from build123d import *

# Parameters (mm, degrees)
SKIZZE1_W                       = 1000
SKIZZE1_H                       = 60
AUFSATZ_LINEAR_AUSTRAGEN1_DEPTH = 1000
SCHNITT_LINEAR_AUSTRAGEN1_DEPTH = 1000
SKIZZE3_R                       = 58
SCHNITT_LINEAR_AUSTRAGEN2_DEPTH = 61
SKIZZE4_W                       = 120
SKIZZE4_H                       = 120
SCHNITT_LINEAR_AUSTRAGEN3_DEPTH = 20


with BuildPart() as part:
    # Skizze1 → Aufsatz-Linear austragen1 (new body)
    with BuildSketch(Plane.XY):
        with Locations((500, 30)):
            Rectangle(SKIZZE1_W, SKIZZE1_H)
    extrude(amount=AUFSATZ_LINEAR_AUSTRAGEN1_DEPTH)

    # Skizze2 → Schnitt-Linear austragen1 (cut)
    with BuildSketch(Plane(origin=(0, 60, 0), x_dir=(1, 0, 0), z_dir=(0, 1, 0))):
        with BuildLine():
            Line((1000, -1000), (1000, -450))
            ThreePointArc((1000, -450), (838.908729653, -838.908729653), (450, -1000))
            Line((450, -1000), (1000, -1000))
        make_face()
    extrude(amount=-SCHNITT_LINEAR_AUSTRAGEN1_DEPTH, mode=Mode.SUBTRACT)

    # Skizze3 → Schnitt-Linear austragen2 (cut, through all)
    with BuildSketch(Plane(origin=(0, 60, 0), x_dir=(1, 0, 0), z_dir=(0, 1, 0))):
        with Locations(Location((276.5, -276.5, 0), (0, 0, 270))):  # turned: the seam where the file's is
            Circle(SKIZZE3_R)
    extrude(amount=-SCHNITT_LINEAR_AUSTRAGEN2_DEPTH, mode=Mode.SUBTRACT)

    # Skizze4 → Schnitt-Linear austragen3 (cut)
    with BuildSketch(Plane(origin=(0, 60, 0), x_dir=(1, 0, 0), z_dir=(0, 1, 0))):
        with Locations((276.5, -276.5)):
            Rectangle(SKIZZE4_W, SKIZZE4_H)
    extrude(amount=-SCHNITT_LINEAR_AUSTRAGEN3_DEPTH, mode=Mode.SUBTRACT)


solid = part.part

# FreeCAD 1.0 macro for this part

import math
import FreeCAD as App
import Part
import Sketcher
Q = App.Units.Quantity


def add_polygon(sketch, points):
    """Adds a closed chain of lines whose ends are joined by coincident constraints."""
    first, n = sketch.GeometryCount, len(points)
    for a, b in zip(points, points[1:] + points[:1]):
        sketch.addGeometry(Part.LineSegment(App.Vector(*a, 0), App.Vector(*b, 0)), False)
    for i in range(n):
        sketch.addConstraint(Sketcher.Constraint("Coincident", first + i, 2, first + (i + 1) % n, 1))

doc = App.newDocument("Part")
body = doc.addObject("PartDesign::Body", "Body")

sketch1 = body.newObject("Sketcher::SketchObject", "Sketch")
sketch1.AttachmentSupport = (doc.getObject("XY_Plane"), [""])
sketch1.MapMode = "FlatFace"
add_polygon(sketch1, [(0, 60), (0, 0), (1000, 0), (1000, 60)])
sketch1.addConstraint(Sketcher.Constraint("Vertical", 0))
sketch1.addConstraint(Sketcher.Constraint("Horizontal", 1))
sketch1.addConstraint(Sketcher.Constraint("Vertical", 2))
sketch1.addConstraint(Sketcher.Constraint("Horizontal", 3))
sketch1.addConstraint(Sketcher.Constraint("Coincident", 0, 2, -1, 1))
sketch1.addConstraint(Sketcher.Constraint("DistanceX", 1, 1, 1, 2, Q("1000 mm")))
sketch1.addConstraint(Sketcher.Constraint("DistanceY", 0, 2, 0, 1, Q("60 mm")))
pad1 = body.newObject("PartDesign::Pad", "Pad")
pad1.Profile = sketch1
pad1.Length = 1000

sketch2 = body.newObject("Sketcher::SketchObject", "Sketch001")
sketch2.AttachmentSupport = (doc.getObject("XZ_Plane"), [""])
sketch2.MapMode = "FlatFace"
sketch2.AttachmentOffset = App.Placement(App.Vector(0, 0, -60), App.Rotation())
sketch2.addGeometry(Part.LineSegment(App.Vector(1000, 1000, 0), App.Vector(1000, 450, 0)), False)
sketch2.addGeometry(Part.ArcOfCircle(Part.Circle(App.Vector(450, 450, 0), App.Vector(0, 0, 1), 550), math.radians(0), math.radians(90)), False)
sketch2.addGeometry(Part.LineSegment(App.Vector(450, 1000, 0), App.Vector(1000, 1000, 0)), False)
sketch2.addConstraint(Sketcher.Constraint("Tangent", 0, 2, 1, 1))
sketch2.addConstraint(Sketcher.Constraint("Tangent", 1, 2, 2, 1))
sketch2.addConstraint(Sketcher.Constraint("Coincident", 2, 2, 0, 1))
sketch2.addConstraint(Sketcher.Constraint("Vertical", 0))
sketch2.addConstraint(Sketcher.Constraint("Horizontal", 2))
sketch2.addConstraint(Sketcher.Constraint("Radius", 1, Q("550 mm")))
sketch2.addConstraint(Sketcher.Constraint("DistanceX", -1, 1, 1, 3, Q("450 mm")))
sketch2.addConstraint(Sketcher.Constraint("DistanceY", -1, 1, 1, 3, Q("450 mm")))
pocket1 = body.newObject("PartDesign::Pocket", "Pocket")
pocket1.Profile = sketch2
pocket1.Length = 1000
pocket1.Reversed = True

sketch3 = body.newObject("Sketcher::SketchObject", "Sketch002")
sketch3.AttachmentSupport = (doc.getObject("XZ_Plane"), [""])
sketch3.MapMode = "FlatFace"
sketch3.AttachmentOffset = App.Placement(App.Vector(0, 0, -60), App.Rotation())
sketch3.addGeometry(Part.Circle(App.Vector(276, 276, 0), App.Vector(0, 0, 1), 58), False)
sketch3.addConstraint(Sketcher.Constraint("Diameter", 0, Q("116 mm")))
sketch3.addConstraint(Sketcher.Constraint("DistanceX", -1, 1, 0, 3, Q("276.5 mm")))
sketch3.addConstraint(Sketcher.Constraint("DistanceY", -1, 1, 0, 3, Q("276.5 mm")))
pocket2 = body.newObject("PartDesign::Pocket", "Pocket001")
pocket2.Profile = sketch3
pocket2.Type = "ThroughAll"
pocket2.Reversed = True

sketch4 = body.newObject("Sketcher::SketchObject", "Sketch003")
sketch4.AttachmentSupport = (doc.getObject("XZ_Plane"), [""])
sketch4.MapMode = "FlatFace"
sketch4.AttachmentOffset = App.Placement(App.Vector(0, 0, -60), App.Rotation())
add_polygon(sketch4, [(216, 216), (216, 336), (336, 336), (336, 216)])
sketch4.addConstraint(Sketcher.Constraint("Vertical", 0))
sketch4.addConstraint(Sketcher.Constraint("Horizontal", 1))
sketch4.addConstraint(Sketcher.Constraint("Vertical", 2))
sketch4.addConstraint(Sketcher.Constraint("Horizontal", 3))
sketch4.addConstraint(Sketcher.Constraint("Equal", 3, 0))
sketch4.addConstraint(Sketcher.Constraint("DistanceX", 1, 1, 1, 2, Q("120 mm")))
sketch4.addConstraint(Sketcher.Constraint("DistanceX", -1, 1, 0, 2, Q("216.5 mm")))
sketch4.addConstraint(Sketcher.Constraint("DistanceY", -1, 1, 0, 2, Q("336.5 mm")))
pocket3 = body.newObject("PartDesign::Pocket", "Pocket002")
pocket3.Profile = sketch4
pocket3.Length = 20
pocket3.Reversed = True

doc.recompute()
